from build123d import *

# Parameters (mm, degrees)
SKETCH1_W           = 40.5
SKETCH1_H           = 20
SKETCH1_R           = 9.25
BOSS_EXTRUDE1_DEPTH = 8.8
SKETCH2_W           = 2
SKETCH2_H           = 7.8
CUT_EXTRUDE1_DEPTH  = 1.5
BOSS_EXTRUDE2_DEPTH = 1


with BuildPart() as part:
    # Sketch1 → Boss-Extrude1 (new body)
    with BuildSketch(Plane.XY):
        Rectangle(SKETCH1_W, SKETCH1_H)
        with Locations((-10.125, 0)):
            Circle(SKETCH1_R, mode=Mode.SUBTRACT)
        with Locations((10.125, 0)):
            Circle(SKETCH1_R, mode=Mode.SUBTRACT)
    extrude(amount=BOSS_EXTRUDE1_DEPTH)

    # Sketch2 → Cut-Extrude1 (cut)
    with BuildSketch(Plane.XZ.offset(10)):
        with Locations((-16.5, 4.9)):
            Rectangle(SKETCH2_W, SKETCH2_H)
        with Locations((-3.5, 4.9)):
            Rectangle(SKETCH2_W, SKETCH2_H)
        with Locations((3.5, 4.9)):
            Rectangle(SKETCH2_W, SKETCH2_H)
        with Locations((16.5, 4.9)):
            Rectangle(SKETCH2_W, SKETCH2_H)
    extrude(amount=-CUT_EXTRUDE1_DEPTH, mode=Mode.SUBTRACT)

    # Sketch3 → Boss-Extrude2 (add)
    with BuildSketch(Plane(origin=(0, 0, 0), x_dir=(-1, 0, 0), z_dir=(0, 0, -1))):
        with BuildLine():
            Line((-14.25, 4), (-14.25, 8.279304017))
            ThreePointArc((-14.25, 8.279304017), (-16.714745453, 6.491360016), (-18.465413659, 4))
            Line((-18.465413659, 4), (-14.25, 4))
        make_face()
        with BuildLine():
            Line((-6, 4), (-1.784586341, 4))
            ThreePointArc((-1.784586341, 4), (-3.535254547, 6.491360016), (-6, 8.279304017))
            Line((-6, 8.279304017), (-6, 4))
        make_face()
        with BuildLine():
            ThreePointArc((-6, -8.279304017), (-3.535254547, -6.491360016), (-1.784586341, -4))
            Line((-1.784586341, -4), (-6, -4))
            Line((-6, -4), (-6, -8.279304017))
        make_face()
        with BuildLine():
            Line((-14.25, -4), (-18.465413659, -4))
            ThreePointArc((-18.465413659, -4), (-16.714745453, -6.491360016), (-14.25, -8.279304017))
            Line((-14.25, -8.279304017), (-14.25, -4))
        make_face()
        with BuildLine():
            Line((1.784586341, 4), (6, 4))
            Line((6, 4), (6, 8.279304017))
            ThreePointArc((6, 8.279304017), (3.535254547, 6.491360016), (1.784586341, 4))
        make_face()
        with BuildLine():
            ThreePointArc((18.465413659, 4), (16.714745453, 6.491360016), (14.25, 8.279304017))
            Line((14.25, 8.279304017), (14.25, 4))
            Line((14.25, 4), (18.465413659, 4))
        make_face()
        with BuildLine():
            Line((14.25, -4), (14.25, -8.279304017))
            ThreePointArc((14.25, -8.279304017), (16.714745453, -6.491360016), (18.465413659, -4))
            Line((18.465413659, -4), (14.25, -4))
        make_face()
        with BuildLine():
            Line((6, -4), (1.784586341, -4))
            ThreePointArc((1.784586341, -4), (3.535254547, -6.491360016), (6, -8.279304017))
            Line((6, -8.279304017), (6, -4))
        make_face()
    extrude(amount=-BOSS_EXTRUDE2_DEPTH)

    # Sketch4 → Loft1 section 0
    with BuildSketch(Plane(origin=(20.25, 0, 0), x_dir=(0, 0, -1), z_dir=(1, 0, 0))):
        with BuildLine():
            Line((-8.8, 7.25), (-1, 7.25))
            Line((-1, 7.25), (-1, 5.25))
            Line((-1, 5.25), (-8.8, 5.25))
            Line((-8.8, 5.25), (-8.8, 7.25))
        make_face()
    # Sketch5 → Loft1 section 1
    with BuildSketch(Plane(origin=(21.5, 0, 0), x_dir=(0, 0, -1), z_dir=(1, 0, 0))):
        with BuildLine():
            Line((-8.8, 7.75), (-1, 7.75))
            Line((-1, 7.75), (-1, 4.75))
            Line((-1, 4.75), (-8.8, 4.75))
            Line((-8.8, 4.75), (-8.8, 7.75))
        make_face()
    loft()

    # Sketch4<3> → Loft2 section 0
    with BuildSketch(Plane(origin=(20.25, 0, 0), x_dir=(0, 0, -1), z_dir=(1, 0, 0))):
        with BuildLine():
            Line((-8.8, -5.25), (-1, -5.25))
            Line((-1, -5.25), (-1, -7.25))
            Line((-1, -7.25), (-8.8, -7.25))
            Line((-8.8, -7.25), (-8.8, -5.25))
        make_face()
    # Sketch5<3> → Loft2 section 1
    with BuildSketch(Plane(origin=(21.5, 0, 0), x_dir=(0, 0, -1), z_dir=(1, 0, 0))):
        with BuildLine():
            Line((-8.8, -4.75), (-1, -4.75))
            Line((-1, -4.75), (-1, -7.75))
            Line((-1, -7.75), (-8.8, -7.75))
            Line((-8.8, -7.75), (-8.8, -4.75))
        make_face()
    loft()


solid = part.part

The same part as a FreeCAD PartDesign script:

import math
import FreeCAD as App
import Part
import Sketcher
from FreeCAD import Vector


def add_polygon(sketch, points):
    """Adds a closed chain of lines whose ends are joined by coincident constraints."""
    first, n = sketch.GeometryCount, len(points)
    for a, b in zip(points, points[1:] + points[:1]):
        sketch.addGeometry(Part.LineSegment(App.Vector(*a, 0), App.Vector(*b, 0)), False)
    for i in range(n):
        sketch.addConstraint(Sketcher.Constraint("Coincident", first + i, 2, first + (i + 1) % n, 1))

doc = App.newDocument("Part")
body = doc.addObject("PartDesign::Body", "Body")

# Sketch on XY plane
sketch1 = body.newObject("Sketcher::SketchObject", "Sketch")
sketch1.AttachmentSupport = (doc.getObject("XY_Plane"), [""])
sketch1.MapMode = "FlatFace"
add_polygon(sketch1, [(-20, 10), (-20, -10), (20, -10), (20, 10)])  # lines 0-3
sketch1.addGeometry(Part.Circle(Vector(-10, 0, 0), Vector(0, 0, 1), 9), False)  # 4
sketch1.addGeometry(Part.Circle(Vector(10, 0, 0), Vector(0, 0, 1), 9), False)  # 5
sketch1.addConstraint([
    Sketcher.Constraint("Vertical", 0),
    Sketcher.Constraint("Horizontal", 1),
    Sketcher.Constraint("Vertical", 2),
    Sketcher.Constraint("Horizontal", 3),
    Sketcher.Constraint("Equal", 4, 5),
    Sketcher.Constraint("Symmetric", 4, 3, 5, 3, -1, 1),
    Sketcher.Constraint("Symmetric", 0, 2, 2, 2, -1, 1),
    Sketcher.Constraint("PointOnObject", 4, 3, -1),
    Sketcher.Constraint("Diameter", 4, 18.5),
    Sketcher.Constraint("DistanceY", 0, 2, 0, 1, 20.0),
    Sketcher.Constraint("DistanceX", 1, 1, 1, 2, 40.5),
    Sketcher.Constraint("DistanceX", 4, 3, 5, 3, 20.25),
])
pad1 = body.newObject("PartDesign::Pad", "Pad")
pad1.Profile = sketch1
pad1.Length = 8.8

# Sketch on XZ plane
sketch2 = body.newObject("Sketcher::SketchObject", "Sketch001")
sketch2.AttachmentSupport = (doc.getObject("XZ_Plane"), [""])
sketch2.MapMode = "FlatFace"
sketch2.AttachmentOffset = App.Placement(Vector(0, 0, 10), App.Rotation())
add_polygon(sketch2, [(-17.5, 8.8), (-17.5, 1), (-15.5, 1), (-15.5, 8.8)])  # lines 0-3
add_polygon(sketch2, [(-4.5, 8.8), (-4.5, 1), (-2.5, 1), (-2.5, 8.8)])  # lines 4-7
add_polygon(sketch2, [(2.5, 8.8), (2.5, 1), (4.5, 1), (4.5, 8.8)])  # lines 8-11
add_polygon(sketch2, [(15.5, 8.8), (15.5, 1), (17.5, 1), (17.5, 8.8)])  # lines 12-15
sketch2.addConstraint([
    Sketcher.Constraint("Vertical", 0),
    Sketcher.Constraint("Horizontal", 1),
    Sketcher.Constraint("Vertical", 2),
    Sketcher.Constraint("Horizontal", 3),
    Sketcher.Constraint("Vertical", 4),
    Sketcher.Constraint("Horizontal", 5),
    Sketcher.Constraint("Vertical", 6),
    Sketcher.Constraint("Horizontal", 7),
    Sketcher.Constraint("Vertical", 8),
    Sketcher.Constraint("Horizontal", 9),
    Sketcher.Constraint("Vertical", 10),
    Sketcher.Constraint("Horizontal", 11),
    Sketcher.Constraint("Vertical", 12),
    Sketcher.Constraint("Horizontal", 13),
    Sketcher.Constraint("Vertical", 14),
    Sketcher.Constraint("Horizontal", 15),
    Sketcher.Constraint("Symmetric", 5, 2, 8, 2, -2),
    Sketcher.Constraint("Symmetric", 7, 2, 10, 2, -2),
    Sketcher.Constraint("Symmetric", 1, 2, 12, 2, -2),
    Sketcher.Constraint("Symmetric", 3, 2, 14, 2, -2),
    Sketcher.Constraint("Horizontal", 1, 2, 4, 2),
    Sketcher.Constraint("Horizontal", 3, 2, 6, 2),
    Sketcher.Constraint("Equal", 3, 5),
    Sketcher.Constraint("DistanceX", 1, 1, 1, 2, 2.0),
    Sketcher.Constraint("DistanceY", 0, 2, 0, 1, 7.8),
    Sketcher.Constraint("DistanceY", -1, 1, 0, 2, 1.0),
    Sketcher.Constraint("DistanceX", 1, 2, 4, 2, 11.0),
    Sketcher.Constraint("DistanceX", 5, 2, 8, 2, 5.0),
])
pocket1 = body.newObject("PartDesign::Pocket", "Pocket")
pocket1.Profile = sketch2
pocket1.Length = 1.5

# Sketch on XY plane
sketch3 = body.newObject("Sketcher::SketchObject", "Sketch002")
sketch3.AttachmentSupport = (doc.getObject("XY_Plane"), [""])
sketch3.MapMode = "FlatFace"
sketch3.addGeometry([
    Part.LineSegment(Vector(14.2, 4, 0), Vector(14.2, 8.3, 0)),  # 0
    Part.ArcOfCircle(Part.Circle(Vector(10.1, 0, 0), Vector(0, 0, 1), 9.3), math.radians(26), math.radians(64)),  # 1
    Part.LineSegment(Vector(18.5, 4, 0), Vector(14.2, 4, 0)),  # 2
    Part.LineSegment(Vector(6, 4, 0), Vector(1.8, 4, 0)),  # 3
    Part.ArcOfCircle(Part.Circle(Vector(10.1, 0, 0), Vector(0, 0, 1), 9.3), math.radians(116), math.radians(154)),  # 4
    Part.LineSegment(Vector(6, 8.3, 0), Vector(6, 4, 0)),  # 5
    Part.ArcOfCircle(Part.Circle(Vector(10.1, 0, 0), Vector(0, 0, 1), 9.3), math.radians(-154), math.radians(-116)),  # 6
    Part.LineSegment(Vector(1.8, -4, 0), Vector(6, -4, 0)),  # 7
    Part.LineSegment(Vector(6, -4, 0), Vector(6, -8.3, 0)),  # 8
    Part.LineSegment(Vector(14.2, -4, 0), Vector(18.5, -4, 0)),  # 9
    Part.ArcOfCircle(Part.Circle(Vector(10.1, 0, 0), Vector(0, 0, 1), 9.3), math.radians(-64), math.radians(-26)),  # 10
    Part.LineSegment(Vector(14.2, -8.3, 0), Vector(14.2, -4, 0)),  # 11
    Part.LineSegment(Vector(-1.8, 4, 0), Vector(-6, 4, 0)),  # 12
    Part.LineSegment(Vector(-6, 4, 0), Vector(-6, 8.3, 0)),  # 13
    Part.ArcOfCircle(Part.Circle(Vector(-10.1, 0, 0), Vector(0, 0, 1), 9.3), math.radians(26), math.radians(64)),  # 14
    Part.ArcOfCircle(Part.Circle(Vector(-10.1, 0, 0), Vector(0, 0, 1), 9.3), math.radians(116), math.radians(154)),  # 15
    Part.LineSegment(Vector(-14.2, 8.3, 0), Vector(-14.2, 4, 0)),  # 16
    Part.LineSegment(Vector(-14.2, 4, 0), Vector(-18.5, 4, 0)),  # 17
    Part.LineSegment(Vector(-14.2, -4, 0), Vector(-14.2, -8.3, 0)),  # 18
    Part.ArcOfCircle(Part.Circle(Vector(-10.1, 0, 0), Vector(0, 0, 1), 9.3), math.radians(-154), math.radians(-116)),  # 19
    Part.LineSegment(Vector(-18.5, -4, 0), Vector(-14.2, -4, 0)),  # 20
    Part.LineSegment(Vector(-6, -4, 0), Vector(-1.8, -4, 0)),  # 21
    Part.ArcOfCircle(Part.Circle(Vector(-10.1, 0, 0), Vector(0, 0, 1), 9.3), math.radians(-64), math.radians(-26)),  # 22
    Part.LineSegment(Vector(-6, -8.3, 0), Vector(-6, -4, 0)),  # 23
], False)
sketch3.addConstraint([
    Sketcher.Constraint("Coincident", 0, 2, 1, 2),
    Sketcher.Constraint("Coincident", 1, 1, 2, 1),
    Sketcher.Constraint("Coincident", 2, 2, 0, 1),
    Sketcher.Constraint("Coincident", 3, 2, 4, 2),
    Sketcher.Constraint("Coincident", 4, 1, 5, 1),
    Sketcher.Constraint("Coincident", 5, 2, 3, 1),
    Sketcher.Constraint("Coincident", 6, 1, 7, 1),
    Sketcher.Constraint("Coincident", 7, 2, 8, 1),
    Sketcher.Constraint("Coincident", 8, 2, 6, 2),
    Sketcher.Constraint("Coincident", 9, 2, 10, 2),
    Sketcher.Constraint("Coincident", 10, 1, 11, 1),
    Sketcher.Constraint("Coincident", 11, 2, 9, 1),
    Sketcher.Constraint("Coincident", 12, 2, 13, 1),
    Sketcher.Constraint("Coincident", 13, 2, 14, 2),
    Sketcher.Constraint("Coincident", 14, 1, 12, 1),
    Sketcher.Constraint("Coincident", 15, 1, 16, 1),
    Sketcher.Constraint("Coincident", 16, 2, 17, 1),
    Sketcher.Constraint("Coincident", 17, 2, 15, 2),
    Sketcher.Constraint("Coincident", 18, 2, 19, 2),
    Sketcher.Constraint("Coincident", 19, 1, 20, 1),
    Sketcher.Constraint("Coincident", 20, 2, 18, 1),
    Sketcher.Constraint("Coincident", 21, 2, 22, 2),
    Sketcher.Constraint("Coincident", 22, 1, 23, 1),
    Sketcher.Constraint("Coincident", 23, 2, 21, 1),
    Sketcher.Constraint("Vertical", 0),
    Sketcher.Constraint("Horizontal", 2),
    Sketcher.Constraint("Horizontal", 3),
    Sketcher.Constraint("Vertical", 5),
    Sketcher.Constraint("Horizontal", 7),
    Sketcher.Constraint("Vertical", 8),
    Sketcher.Constraint("Horizontal", 9),
    Sketcher.Constraint("Vertical", 11),
    Sketcher.Constraint("Horizontal", 12),
    Sketcher.Constraint("Vertical", 13),
    Sketcher.Constraint("Vertical", 16),
    Sketcher.Constraint("Horizontal", 17),
    Sketcher.Constraint("Vertical", 18),
    Sketcher.Constraint("Horizontal", 20),
    Sketcher.Constraint("Horizontal", 21),
    Sketcher.Constraint("Vertical", 23),
    Sketcher.Constraint("Coincident", 4, 3, 1, 3),
    Sketcher.Constraint("Coincident", 6, 3, 1, 3),
    Sketcher.Constraint("Coincident", 10, 3, 1, 3),
    Sketcher.Constraint("Coincident", 15, 3, 14, 3),
    Sketcher.Constraint("Coincident", 19, 3, 14, 3),
    Sketcher.Constraint("Coincident", 22, 3, 14, 3),
    Sketcher.Constraint("Equal", 1, 4),
    Sketcher.Constraint("Equal", 4, 6),
    Sketcher.Constraint("Equal", 6, 10),
    Sketcher.Constraint("Equal", 10, 14),
    Sketcher.Constraint("Equal", 14, 15),
    Sketcher.Constraint("Equal", 15, 19),
    Sketcher.Constraint("Equal", 19, 22),
    Sketcher.Constraint("Symmetric", 1, 3, 14, 3, -1, 1),
    Sketcher.Constraint("Symmetric", 7, 2, 12, 2, -1, 1),
    Sketcher.Constraint("Symmetric", 11, 2, 16, 2, -1, 1),
    Sketcher.Constraint("Symmetric", 2, 2, 20, 2, -1, 1),
    Sketcher.Constraint("Symmetric", 5, 2, 23, 2, -1, 1),
    Sketcher.Constraint("Symmetric", 5, 2, 12, 2, -2),
    Sketcher.Constraint("Symmetric", 0, 2, 15, 1, -2),
    Sketcher.Constraint("Horizontal", 2, 2, 3, 2),
    Sketcher.Constraint("Horizontal", 0, 2, 4, 1),
    Sketcher.Constraint("Horizontal", 7, 2, 9, 2),
    Sketcher.Constraint("Radius", 1, 9.25),
    Sketcher.Constraint("DistanceY", -1, 1, 1, 1, 4.0),
    Sketcher.Constraint("DistanceX", -1, 1, 4, 1, 6.0),
    Sketcher.Constraint("DistanceX", -1, 1, 0, 2, 14.25),
])
pad2 = body.newObject("PartDesign::Pad", "Pad001")
pad2.Profile = sketch3
pad2.Length = 1

# Sketch on YZ plane
sketch4 = body.newObject("Sketcher::SketchObject", "Sketch003")
sketch4.AttachmentSupport = (doc.getObject("YZ_Plane"), [""])
sketch4.MapMode = "FlatFace"
sketch4.AttachmentOffset = App.Placement(Vector(0, 0, 20.25), App.Rotation())
add_polygon(sketch4, [(7.2, 1), (7.2, 8.8), (5.2, 8.8), (5.2, 1)])  # lines 0-3
sketch4.addConstraint([
    Sketcher.Constraint("Vertical", 0),
    Sketcher.Constraint("Horizontal", 1),
    Sketcher.Constraint("Vertical", 2),
    Sketcher.Constraint("Horizontal", 3),
    Sketcher.Constraint("DistanceX", 1, 2, 1, 1, 2.0),
    Sketcher.Constraint("DistanceY", 0, 1, 0, 2, 7.8),
    Sketcher.Constraint("DistanceY", -1, 1, 2, 2, 1.0),
    Sketcher.Constraint("DistanceX", -1, 1, 0, 2, 7.25),
])

# Sketch on YZ plane
sketch5 = body.newObject("Sketcher::SketchObject", "Sketch004")
sketch5.AttachmentSupport = (doc.getObject("YZ_Plane"), [""])
sketch5.MapMode = "FlatFace"
sketch5.AttachmentOffset = App.Placement(Vector(0, 0, 21.5), App.Rotation())
add_polygon(sketch5, [(7.8, 1), (7.8, 8.8), (4.8, 8.8), (4.8, 1)])  # lines 0-3
sketch5.addConstraint([
    Sketcher.Constraint("Vertical", 0),
    Sketcher.Constraint("Horizontal", 1),
    Sketcher.Constraint("Vertical", 2),
    Sketcher.Constraint("Horizontal", 3),
    Sketcher.Constraint("DistanceX", 1, 2, 1, 1, 3.0),
    Sketcher.Constraint("DistanceY", 0, 1, 0, 2, 7.8),
    Sketcher.Constraint("DistanceY", -1, 1, 2, 2, 1.0),
    Sketcher.Constraint("DistanceX", -1, 1, 0, 2, 7.75),
])

additiveloft = body.newObject("PartDesign::AdditiveLoft", "AdditiveLoft")
additiveloft.Profile = sketch4
additiveloft.Sections = [sketch5]

# Sketch on YZ plane
sketch6 = body.newObject("Sketcher::SketchObject", "Sketch005")
sketch6.AttachmentSupport = (doc.getObject("YZ_Plane"), [""])
sketch6.MapMode = "FlatFace"
sketch6.AttachmentOffset = App.Placement(Vector(0, 0, 20.25), App.Rotation())
add_polygon(sketch6, [(-5.2, 1), (-5.2, 8.8), (-7.2, 8.8), (-7.2, 1)])  # lines 0-3
sketch6.addConstraint([
    Sketcher.Constraint("Vertical", 0),
    Sketcher.Constraint("Horizontal", 1),
    Sketcher.Constraint("Vertical", 2),
    Sketcher.Constraint("Horizontal", 3),
    Sketcher.Constraint("DistanceX", 1, 2, 1, 1, 2.0),
    Sketcher.Constraint("DistanceY", 0, 1, 0, 2, 7.8),
    Sketcher.Constraint("DistanceY", -1, 1, 2, 2, 1.0),
    Sketcher.Constraint("DistanceX", 0, 2, -1, 1, 5.25),
])

# Sketch on YZ plane
sketch7 = body.newObject("Sketcher::SketchObject", "Sketch006")
sketch7.AttachmentSupport = (doc.getObject("YZ_Plane"), [""])
sketch7.MapMode = "FlatFace"
sketch7.AttachmentOffset = App.Placement(Vector(0, 0, 21.5), App.Rotation())
add_polygon(sketch7, [(-4.8, 1), (-4.8, 8.8), (-7.8, 8.8), (-7.8, 1)])  # lines 0-3
sketch7.addConstraint([
    Sketcher.Constraint("Vertical", 0),
    Sketcher.Constraint("Horizontal", 1),
    Sketcher.Constraint("Vertical", 2),
    Sketcher.Constraint("Horizontal", 3),
    Sketcher.Constraint("DistanceX", 1, 2, 1, 1, 3.0),
    Sketcher.Constraint("DistanceY", 0, 1, 0, 2, 7.8),
    Sketcher.Constraint("DistanceY", -1, 1, 2, 2, 1.0),
    Sketcher.Constraint("DistanceX", 0, 2, -1, 1, 4.75),
])

additiveloft2 = body.newObject("PartDesign::AdditiveLoft", "AdditiveLoft001")
additiveloft2.Profile = sketch6
additiveloft2.Sections = [sketch7]

doc.recompute()
